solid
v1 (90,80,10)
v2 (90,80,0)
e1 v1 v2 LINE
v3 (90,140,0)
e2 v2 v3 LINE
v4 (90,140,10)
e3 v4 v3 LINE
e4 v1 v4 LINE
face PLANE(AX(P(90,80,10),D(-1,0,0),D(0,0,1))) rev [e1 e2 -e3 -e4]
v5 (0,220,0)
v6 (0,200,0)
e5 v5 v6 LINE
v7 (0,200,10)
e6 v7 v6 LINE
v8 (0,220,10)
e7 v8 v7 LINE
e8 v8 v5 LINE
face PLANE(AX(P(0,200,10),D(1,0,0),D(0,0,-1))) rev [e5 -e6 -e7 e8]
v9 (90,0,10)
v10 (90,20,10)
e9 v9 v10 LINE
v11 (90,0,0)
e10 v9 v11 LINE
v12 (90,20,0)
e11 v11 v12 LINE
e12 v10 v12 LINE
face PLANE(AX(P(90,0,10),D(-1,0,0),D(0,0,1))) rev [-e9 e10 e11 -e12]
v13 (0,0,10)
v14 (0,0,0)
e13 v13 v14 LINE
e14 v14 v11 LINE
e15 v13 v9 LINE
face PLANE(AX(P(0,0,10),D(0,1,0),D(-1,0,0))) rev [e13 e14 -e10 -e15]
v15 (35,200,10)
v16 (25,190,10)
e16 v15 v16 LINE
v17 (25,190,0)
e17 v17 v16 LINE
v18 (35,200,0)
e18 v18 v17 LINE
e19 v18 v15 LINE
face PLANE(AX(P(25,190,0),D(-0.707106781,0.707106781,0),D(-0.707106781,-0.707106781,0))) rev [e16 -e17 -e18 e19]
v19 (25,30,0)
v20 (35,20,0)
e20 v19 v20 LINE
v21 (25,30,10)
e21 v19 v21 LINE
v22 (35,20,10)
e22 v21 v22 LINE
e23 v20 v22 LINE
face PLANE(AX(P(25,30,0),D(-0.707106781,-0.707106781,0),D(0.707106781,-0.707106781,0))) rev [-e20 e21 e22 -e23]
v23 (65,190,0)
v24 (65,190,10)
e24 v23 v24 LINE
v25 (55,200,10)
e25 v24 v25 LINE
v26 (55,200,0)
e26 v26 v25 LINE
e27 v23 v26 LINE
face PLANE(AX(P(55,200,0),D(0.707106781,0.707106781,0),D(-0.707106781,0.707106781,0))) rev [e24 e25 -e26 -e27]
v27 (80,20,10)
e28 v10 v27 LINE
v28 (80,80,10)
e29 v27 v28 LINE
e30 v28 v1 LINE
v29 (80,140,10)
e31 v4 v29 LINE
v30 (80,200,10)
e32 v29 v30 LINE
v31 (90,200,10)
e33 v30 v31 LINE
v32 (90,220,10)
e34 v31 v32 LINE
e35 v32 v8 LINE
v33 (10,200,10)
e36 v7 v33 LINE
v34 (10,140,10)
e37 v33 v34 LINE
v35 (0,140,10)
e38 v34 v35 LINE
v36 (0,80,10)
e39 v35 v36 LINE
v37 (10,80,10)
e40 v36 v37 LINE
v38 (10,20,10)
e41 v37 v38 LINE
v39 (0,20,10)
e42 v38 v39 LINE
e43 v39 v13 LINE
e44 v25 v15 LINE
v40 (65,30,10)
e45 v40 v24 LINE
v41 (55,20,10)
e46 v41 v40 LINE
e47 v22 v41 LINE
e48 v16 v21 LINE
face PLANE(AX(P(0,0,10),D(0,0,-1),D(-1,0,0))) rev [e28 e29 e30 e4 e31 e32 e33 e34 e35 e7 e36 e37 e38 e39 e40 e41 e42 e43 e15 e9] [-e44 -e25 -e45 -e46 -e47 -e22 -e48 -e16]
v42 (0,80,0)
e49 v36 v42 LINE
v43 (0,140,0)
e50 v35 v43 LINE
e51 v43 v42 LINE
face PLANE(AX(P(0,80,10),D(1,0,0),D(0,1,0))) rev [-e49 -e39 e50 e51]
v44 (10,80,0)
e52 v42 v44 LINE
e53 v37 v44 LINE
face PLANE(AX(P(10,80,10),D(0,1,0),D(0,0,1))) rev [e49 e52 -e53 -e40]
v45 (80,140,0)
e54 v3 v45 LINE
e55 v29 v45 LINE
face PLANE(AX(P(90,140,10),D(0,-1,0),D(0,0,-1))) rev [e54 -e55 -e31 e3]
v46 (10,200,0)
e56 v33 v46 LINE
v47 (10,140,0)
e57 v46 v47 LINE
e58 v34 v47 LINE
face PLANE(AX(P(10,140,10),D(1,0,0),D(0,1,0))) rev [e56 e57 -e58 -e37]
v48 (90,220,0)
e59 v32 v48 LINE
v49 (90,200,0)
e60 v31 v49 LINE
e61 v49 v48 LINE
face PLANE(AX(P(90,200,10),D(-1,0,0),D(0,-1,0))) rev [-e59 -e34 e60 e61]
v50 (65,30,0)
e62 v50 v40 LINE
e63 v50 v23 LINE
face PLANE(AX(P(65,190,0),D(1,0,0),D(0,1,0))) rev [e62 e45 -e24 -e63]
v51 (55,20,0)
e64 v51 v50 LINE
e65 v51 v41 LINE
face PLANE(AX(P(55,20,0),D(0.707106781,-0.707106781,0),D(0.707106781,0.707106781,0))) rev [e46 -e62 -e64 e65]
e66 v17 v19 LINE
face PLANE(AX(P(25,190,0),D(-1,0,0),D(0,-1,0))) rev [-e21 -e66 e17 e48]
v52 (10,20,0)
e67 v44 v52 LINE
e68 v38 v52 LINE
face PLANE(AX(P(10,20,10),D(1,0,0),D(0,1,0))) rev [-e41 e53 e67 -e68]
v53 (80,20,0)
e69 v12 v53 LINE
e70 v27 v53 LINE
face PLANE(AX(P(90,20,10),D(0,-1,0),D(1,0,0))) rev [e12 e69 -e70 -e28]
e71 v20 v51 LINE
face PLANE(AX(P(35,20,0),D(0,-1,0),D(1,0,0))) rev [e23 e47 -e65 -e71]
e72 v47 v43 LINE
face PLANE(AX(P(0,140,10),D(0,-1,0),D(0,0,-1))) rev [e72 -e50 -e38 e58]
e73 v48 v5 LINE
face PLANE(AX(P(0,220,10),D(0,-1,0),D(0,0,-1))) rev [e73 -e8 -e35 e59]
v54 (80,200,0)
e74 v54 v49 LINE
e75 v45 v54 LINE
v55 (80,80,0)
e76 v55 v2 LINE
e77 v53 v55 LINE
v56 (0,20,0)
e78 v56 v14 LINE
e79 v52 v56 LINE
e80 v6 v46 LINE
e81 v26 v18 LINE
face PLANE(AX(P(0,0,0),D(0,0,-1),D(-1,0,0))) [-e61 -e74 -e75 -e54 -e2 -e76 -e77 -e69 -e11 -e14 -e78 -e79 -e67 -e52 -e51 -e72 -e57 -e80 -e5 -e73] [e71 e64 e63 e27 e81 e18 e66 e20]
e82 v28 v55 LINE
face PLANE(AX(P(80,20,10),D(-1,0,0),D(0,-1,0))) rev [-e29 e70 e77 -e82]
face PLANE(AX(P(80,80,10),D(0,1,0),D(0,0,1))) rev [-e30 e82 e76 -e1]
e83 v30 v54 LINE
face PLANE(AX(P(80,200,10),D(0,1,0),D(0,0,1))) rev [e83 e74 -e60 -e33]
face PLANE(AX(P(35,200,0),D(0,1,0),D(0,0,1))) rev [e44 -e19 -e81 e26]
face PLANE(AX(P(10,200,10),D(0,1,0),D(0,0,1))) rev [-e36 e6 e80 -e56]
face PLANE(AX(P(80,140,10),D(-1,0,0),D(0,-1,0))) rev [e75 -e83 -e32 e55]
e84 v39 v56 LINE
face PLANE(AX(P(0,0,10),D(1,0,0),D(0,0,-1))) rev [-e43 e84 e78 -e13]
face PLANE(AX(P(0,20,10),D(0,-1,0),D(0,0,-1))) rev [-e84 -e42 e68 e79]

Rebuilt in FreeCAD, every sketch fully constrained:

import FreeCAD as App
import Part
import Sketcher


def add_polygon(sketch, points):
    """Adds a closed chain of lines whose ends are joined by coincident constraints."""
    first, n = sketch.GeometryCount, len(points)
    for a, b in zip(points, points[1:] + points[:1]):
        sketch.addGeometry(Part.LineSegment(App.Vector(*a, 0), App.Vector(*b, 0)), False)
    for i in range(n):
        sketch.addConstraint(Sketcher.Constraint("Coincident", first + i, 2, first + (i + 1) % n, 1))

doc = App.newDocument("Part")
body = doc.addObject("PartDesign::Body", "Body")

# Sketch on XY plane
sketch1 = doc.addObject("Sketcher::SketchObject", "Sketch")
body.addObject(sketch1)
sketch1.AttachmentSupport = (doc.XY_Plane, [""])
sketch1.MapMode = "FlatFace"
add_polygon(sketch1, [(0, 0), (90, 0), (90, 20), (80, 20), (80, 80), (90, 80), (90, 140), (80, 140), (80, 200), (90, 200), (90, 220), (0, 220), (0, 200), (10, 200), (10, 140), (0, 140), (0, 80), (10, 80), (10, 20), (0, 20)])  # lines 0-19
sketch1.addConstraint([
    Sketcher.Constraint("Horizontal", 0),
    Sketcher.Constraint("Vertical", 1),
    Sketcher.Constraint("Horizontal", 2),
    Sketcher.Constraint("Vertical", 3),
    Sketcher.Constraint("Horizontal", 4),
    Sketcher.Constraint("Vertical", 5),
    Sketcher.Constraint("Horizontal", 6),
    Sketcher.Constraint("Vertical", 7),
    Sketcher.Constraint("Horizontal", 8),
    Sketcher.Constraint("Vertical", 9),
    Sketcher.Constraint("Horizontal", 10),
    Sketcher.Constraint("Vertical", 11),
    Sketcher.Constraint("Horizontal", 12),
    Sketcher.Constraint("Vertical", 13),
    Sketcher.Constraint("Horizontal", 14),
    Sketcher.Constraint("Vertical", 15),
    Sketcher.Constraint("Horizontal", 16),
    Sketcher.Constraint("Vertical", 17),
    Sketcher.Constraint("Horizontal", 18),
    Sketcher.Constraint("Vertical", 19),
    Sketcher.Constraint("Coincident", 19, 2, -1, 1),
    Sketcher.Constraint("PointOnObject", 10, 2, -2),
    Sketcher.Constraint("PointOnObject", 14, 2, -2),
    Sketcher.Constraint("Horizontal", 8, 2, 11, 2),
    Sketcher.Constraint("Horizontal", 6, 2, 13, 2),
    Sketcher.Constraint("Horizontal", 4, 2, 15, 2),
    Sketcher.Constraint("Horizontal", 2, 2, 17, 2),
    Sketcher.Constraint("Vertical", 1, 2, 4, 2),
    Sketcher.Constraint("Vertical", 3, 2, 6, 2),
    Sketcher.Constraint("Vertical", 5, 2, 8, 2),
    Sketcher.Constraint("Vertical", 13, 2, 16, 2),
    Sketcher.Constraint("Equal", 8, 12),
    Sketcher.Constraint("Equal", 3, 5),
    Sketcher.Constraint("Equal", 5, 7),
    Sketcher.Constraint("Equal", 1, 9),
    Sketcher.Constraint("DistanceX", 0, 1, 0, 2, 90.0),
    Sketcher.Constraint("DistanceX", 2, 2, 2, 1, 10.0),
    Sketcher.Constraint("DistanceY", 1, 1, 1, 2, 20.0),
    Sketcher.Constraint("DistanceY", 3, 1, 3, 2, 60.0),
])
pad1 = doc.addObject("PartDesign::Pad", "Pad")
body.addObject(pad1)
pad1.Profile = sketch1
pad1.Length = 10

# Sketch on XY plane
sketch2 = doc.addObject("Sketcher::SketchObject", "Sketch001")
body.addObject(sketch2)
sketch2.AttachmentSupport = (doc.XY_Plane, [""])
sketch2.MapMode = "FlatFace"
sketch2.AttachmentOffset = App.Placement(App.Vector(0, 0, 10), App.Rotation())
add_polygon(sketch2, [(55, 200), (35, 200), (25, 190), (25, 30), (35, 20), (55, 20), (65, 30), (65, 190)])  # lines 0-7
sketch2.addConstraint([
    Sketcher.Constraint("Horizontal", 0),
    Sketcher.Constraint("Vertical", 2),
    Sketcher.Constraint("Horizontal", 4),
    Sketcher.Constraint("Vertical", 6),
    Sketcher.Constraint("Perpendicular", 1, 3),
    Sketcher.Constraint("Perpendicular", 3, 5),
    Sketcher.Constraint("Perpendicular", 5, 7),
    Sketcher.Constraint("Horizontal", 2, 2, 5, 2),
    Sketcher.Constraint("Horizontal", 1, 2, 6, 2),
    Sketcher.Constraint("Vertical", 0, 2, 3, 2),
    Sketcher.Constraint("Vertical", 4, 2, 7, 2),
    Sketcher.Constraint("DistanceX", 0, 2, 0, 1, 20.0),
    Sketcher.Constraint("DistanceY", 2, 2, 2, 1, 160.0),
    Sketcher.Constraint("DistanceX", -1, 1, 0, 2, 35.0),
    Sketcher.Constraint("DistanceY", -1, 1, 0, 2, 200.0),
    Sketcher.Constraint("DistanceX", -1, 1, 1, 2, 25.0),
])
pocket1 = doc.addObject("PartDesign::Pocket", "Pocket")
body.addObject(pocket1)
pocket1.Profile = sketch2
pocket1.Length = 10

doc.recompute()
